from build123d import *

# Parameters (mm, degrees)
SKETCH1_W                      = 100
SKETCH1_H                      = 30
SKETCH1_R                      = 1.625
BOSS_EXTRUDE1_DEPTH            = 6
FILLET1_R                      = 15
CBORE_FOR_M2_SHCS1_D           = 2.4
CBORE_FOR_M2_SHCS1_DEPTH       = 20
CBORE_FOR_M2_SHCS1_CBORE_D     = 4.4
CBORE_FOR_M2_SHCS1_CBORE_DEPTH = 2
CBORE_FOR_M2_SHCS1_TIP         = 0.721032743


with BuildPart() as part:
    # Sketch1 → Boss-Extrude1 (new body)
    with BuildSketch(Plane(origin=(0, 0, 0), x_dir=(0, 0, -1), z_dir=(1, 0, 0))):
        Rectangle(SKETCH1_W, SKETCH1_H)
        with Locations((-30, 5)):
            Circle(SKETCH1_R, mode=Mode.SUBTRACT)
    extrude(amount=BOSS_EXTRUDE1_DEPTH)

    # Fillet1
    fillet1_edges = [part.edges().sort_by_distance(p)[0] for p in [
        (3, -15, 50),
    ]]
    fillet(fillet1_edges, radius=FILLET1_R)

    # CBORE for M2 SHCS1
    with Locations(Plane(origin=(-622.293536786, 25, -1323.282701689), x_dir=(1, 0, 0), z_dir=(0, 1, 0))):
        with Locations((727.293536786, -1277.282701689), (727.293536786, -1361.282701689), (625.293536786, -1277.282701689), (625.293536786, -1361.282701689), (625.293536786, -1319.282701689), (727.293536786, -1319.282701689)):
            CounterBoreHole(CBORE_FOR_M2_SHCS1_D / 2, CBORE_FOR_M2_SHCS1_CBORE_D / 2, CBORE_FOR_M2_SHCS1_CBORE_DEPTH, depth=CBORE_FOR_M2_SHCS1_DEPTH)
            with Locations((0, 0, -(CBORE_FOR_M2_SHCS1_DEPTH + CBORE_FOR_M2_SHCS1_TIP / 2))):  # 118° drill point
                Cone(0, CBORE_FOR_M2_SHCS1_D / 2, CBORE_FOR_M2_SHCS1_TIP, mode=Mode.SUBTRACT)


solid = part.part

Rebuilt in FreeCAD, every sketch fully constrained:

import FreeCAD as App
import Part
import Sketcher
from FreeCAD import Vector


def edges_at(feature, points):
    """Names of the edges that pass closest to the given points."""
    edges = feature.Shape.Edges
    near = lambda p: min(range(len(edges)), key=lambda i: edges[i].distToShape(Part.Vertex(*p))[0])
    return sorted({f"Edge{near(p) + 1}" for p in points})

doc = App.newDocument("Part")
body = doc.addObject("PartDesign::Body", "Body")

sketch1 = body.newObject("Sketcher::SketchObject", "Sketch")
sketch1.AttachmentSupport = (doc.getObject("YZ_Plane"), [""])
sketch1.MapMode = "FlatFace"
sketch1.addGeometry([
    Part.LineSegment(Vector(15, 50, 0), Vector(-15, 50, 0)),
    Part.LineSegment(Vector(-15, 50, 0), Vector(-15, -50, 0)),
    Part.LineSegment(Vector(-15, -50, 0), Vector(15, -50, 0)),
    Part.LineSegment(Vector(15, -50, 0), Vector(15, 50, 0)),
    Part.Circle(Vector(5, 30, 0), Vector(0, 0, 1), 1.6),
], False)
sketch1.addConstraint([
    Sketcher.Constraint("Coincident", 0, 2, 1, 1),
    Sketcher.Constraint("Coincident", 1, 2, 2, 1),
    Sketcher.Constraint("Coincident", 2, 2, 3, 1),
    Sketcher.Constraint("Coincident", 3, 2, 0, 1),
    Sketcher.Constraint("Horizontal", 0),
    Sketcher.Constraint("Vertical", 1),
    Sketcher.Constraint("Horizontal", 2),
    Sketcher.Constraint("Vertical", 3),
    Sketcher.Constraint("Symmetric", 0, 2, 2, 2, -1, 1),
    Sketcher.Constraint("Diameter", 4, 3.25),
    Sketcher.Constraint("DistanceX", 0, 2, 0, 1, 30.0),
    Sketcher.Constraint("DistanceY", 1, 2, 1, 1, 100.0),
    Sketcher.Constraint("DistanceX", -1, 1, 4, 3, 5.0),
    Sketcher.Constraint("DistanceY", -1, 1, 4, 3, 30.0),
])
pad1 = body.newObject("PartDesign::Pad", "Pad")
pad1.Profile = sketch1
pad1.Length = 6
doc.recompute()

fillet = body.newObject("PartDesign::Fillet", "Fillet")
fillet.Base = (pad1, edges_at(pad1, [(3, -15, 50)]))
fillet.Radius = 15

sketch2 = body.newObject("Sketcher::SketchObject", "Sketch001")
sketch2.AttachmentSupport = (doc.getObject("XZ_Plane"), [""])
sketch2.MapMode = "FlatFace"
sketch2.AttachmentOffset = App.Placement(Vector(0, 0, -25), App.Rotation())
sketch2.addGeometry([
    Part.Circle(Vector(105, -46, 0), Vector(0, 0, 1), 1.2),
    Part.Circle(Vector(105, 38, 0), Vector(0, 0, 1), 1.2),
    Part.Circle(Vector(3, -46, 0), Vector(0, 0, 1), 1.2),
    Part.Circle(Vector(3, 38, 0), Vector(0, 0, 1), 1.2),
    Part.Circle(Vector(3, -4, 0), Vector(0, 0, 1), 1.2),
    Part.Circle(Vector(105, -4, 0), Vector(0, 0, 1), 1.2),
], False)
sketch2.addConstraint([
    Sketcher.Constraint("Equal", 0, 1),
    Sketcher.Constraint("Equal", 1, 2),
    Sketcher.Constraint("Equal", 2, 3),
    Sketcher.Constraint("Equal", 3, 4),
    Sketcher.Constraint("Equal", 4, 5),
    Sketcher.Constraint("Horizontal", 0, 3, 2, 3),
    Sketcher.Constraint("Horizontal", 1, 3, 3, 3),
    Sketcher.Constraint("Horizontal", 4, 3, 5, 3),
    Sketcher.Constraint("Vertical", 0, 3, 1, 3),
    Sketcher.Constraint("Vertical", 2, 3, 3, 3),
    Sketcher.Constraint("Vertical", 3, 3, 4, 3),
    Sketcher.Constraint("Vertical", 1, 3, 5, 3),
    Sketcher.Constraint("Diameter", 0, 2.4),
    Sketcher.Constraint("DistanceX", -1, 1, 0, 3, 105.0),
    Sketcher.Constraint("DistanceY", 0, 3, -1, 1, 46.0),
    Sketcher.Constraint("DistanceY", -1, 1, 1, 3, 38.0),
    Sketcher.Constraint("DistanceX", -1, 1, 2, 3, 3.0),
    Sketcher.Constraint("DistanceY", 4, 3, -1, 1, 4.0),
])
doc.recompute()
hole = body.newObject("PartDesign::Hole", "Hole")
hole.Profile = sketch2
hole.ThreadType = "None"
hole.Diameter = 2.4
hole.DepthType = "Dimension"
hole.Depth = 20
hole.DrillPoint = "Angled"
hole.DrillPointAngle = 118
hole.HoleCutType = "Counterbore"
hole.HoleCutDiameter = 4.4
hole.HoleCutDepth = 2
hole.Reversed = True

doc.recompute()
